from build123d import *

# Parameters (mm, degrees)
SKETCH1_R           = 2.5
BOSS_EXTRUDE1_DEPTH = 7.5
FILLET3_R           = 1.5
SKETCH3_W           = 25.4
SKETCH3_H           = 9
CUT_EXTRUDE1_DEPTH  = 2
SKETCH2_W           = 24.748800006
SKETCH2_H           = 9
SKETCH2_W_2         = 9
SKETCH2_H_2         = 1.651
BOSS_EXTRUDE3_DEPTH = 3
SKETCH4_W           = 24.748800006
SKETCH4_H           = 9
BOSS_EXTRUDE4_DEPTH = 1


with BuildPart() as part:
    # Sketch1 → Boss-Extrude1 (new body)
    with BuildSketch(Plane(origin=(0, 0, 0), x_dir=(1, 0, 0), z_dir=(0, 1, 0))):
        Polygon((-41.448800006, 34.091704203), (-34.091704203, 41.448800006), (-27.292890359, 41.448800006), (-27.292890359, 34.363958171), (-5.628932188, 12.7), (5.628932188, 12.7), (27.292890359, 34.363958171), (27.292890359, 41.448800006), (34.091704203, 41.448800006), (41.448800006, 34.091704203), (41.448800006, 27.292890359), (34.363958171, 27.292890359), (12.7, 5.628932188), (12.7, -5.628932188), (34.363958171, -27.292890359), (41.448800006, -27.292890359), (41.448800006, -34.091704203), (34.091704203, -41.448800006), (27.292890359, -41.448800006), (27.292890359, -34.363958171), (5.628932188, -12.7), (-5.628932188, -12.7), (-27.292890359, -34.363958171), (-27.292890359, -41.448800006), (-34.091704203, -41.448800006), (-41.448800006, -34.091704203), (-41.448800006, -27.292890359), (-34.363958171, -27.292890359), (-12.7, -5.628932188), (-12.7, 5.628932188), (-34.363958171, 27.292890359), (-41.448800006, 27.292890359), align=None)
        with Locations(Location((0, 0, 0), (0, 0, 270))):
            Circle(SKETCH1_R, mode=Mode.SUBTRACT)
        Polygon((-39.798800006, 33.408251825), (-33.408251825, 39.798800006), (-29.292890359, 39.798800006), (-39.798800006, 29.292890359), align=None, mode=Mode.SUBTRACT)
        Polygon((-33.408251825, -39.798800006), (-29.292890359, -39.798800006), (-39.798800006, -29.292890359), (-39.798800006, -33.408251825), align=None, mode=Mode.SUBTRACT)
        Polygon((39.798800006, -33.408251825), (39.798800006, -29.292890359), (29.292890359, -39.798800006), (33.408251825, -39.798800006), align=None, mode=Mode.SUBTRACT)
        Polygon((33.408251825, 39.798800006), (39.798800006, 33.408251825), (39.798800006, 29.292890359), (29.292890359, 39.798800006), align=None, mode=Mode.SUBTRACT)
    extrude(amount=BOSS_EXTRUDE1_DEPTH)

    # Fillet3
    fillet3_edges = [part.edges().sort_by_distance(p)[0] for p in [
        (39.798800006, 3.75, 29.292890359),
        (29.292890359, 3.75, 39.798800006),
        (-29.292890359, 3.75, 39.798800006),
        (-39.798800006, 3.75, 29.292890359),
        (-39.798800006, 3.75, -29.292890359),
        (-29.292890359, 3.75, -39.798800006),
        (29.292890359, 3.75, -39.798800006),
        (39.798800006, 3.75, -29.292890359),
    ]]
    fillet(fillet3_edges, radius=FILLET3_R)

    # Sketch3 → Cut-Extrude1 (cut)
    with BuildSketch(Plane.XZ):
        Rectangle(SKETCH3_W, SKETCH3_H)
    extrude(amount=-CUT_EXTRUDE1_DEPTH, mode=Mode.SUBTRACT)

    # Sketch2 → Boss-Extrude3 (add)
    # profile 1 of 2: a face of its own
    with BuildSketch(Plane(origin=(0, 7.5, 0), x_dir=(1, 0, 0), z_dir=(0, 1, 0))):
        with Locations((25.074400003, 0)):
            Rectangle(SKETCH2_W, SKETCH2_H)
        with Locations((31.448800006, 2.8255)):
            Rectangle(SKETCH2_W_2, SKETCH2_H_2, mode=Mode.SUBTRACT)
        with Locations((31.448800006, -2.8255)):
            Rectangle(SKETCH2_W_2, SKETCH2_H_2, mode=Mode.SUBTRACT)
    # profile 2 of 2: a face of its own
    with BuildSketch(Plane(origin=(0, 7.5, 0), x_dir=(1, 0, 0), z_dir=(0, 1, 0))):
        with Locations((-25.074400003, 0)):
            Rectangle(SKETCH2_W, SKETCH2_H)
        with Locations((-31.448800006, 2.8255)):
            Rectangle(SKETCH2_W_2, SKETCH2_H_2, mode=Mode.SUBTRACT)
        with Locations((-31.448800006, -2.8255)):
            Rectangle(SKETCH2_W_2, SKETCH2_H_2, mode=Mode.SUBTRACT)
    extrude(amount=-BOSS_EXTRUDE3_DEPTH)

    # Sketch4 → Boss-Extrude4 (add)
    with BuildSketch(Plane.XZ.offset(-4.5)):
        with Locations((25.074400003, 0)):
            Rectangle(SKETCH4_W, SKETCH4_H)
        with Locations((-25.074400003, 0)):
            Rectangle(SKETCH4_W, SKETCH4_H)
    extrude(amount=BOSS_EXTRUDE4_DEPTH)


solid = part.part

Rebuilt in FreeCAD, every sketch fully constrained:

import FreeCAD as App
import Part
import Sketcher

V = App.Vector
Q = App.Units.Quantity


def edges_at(feature, points):
    """Names of the edges that pass closest to the given points."""
    edges = feature.Shape.Edges
    near = lambda p: min(range(len(edges)), key=lambda i: edges[i].distToShape(Part.Vertex(*p))[0])
    return sorted({f"Edge{near(p) + 1}" for p in points})


def add_polygon(sketch, points):
    """Adds a closed chain of lines whose ends are joined by coincident constraints."""
    first, n = sketch.GeometryCount, len(points)
    for a, b in zip(points, points[1:] + points[:1]):
        sketch.addGeometry(Part.LineSegment(App.Vector(*a, 0), App.Vector(*b, 0)), False)
    for i in range(n):
        sketch.addConstraint(Sketcher.Constraint("Coincident", first + i, 2, first + (i + 1) % n, 1))

doc = App.newDocument("Part")
body = doc.addObject("PartDesign::Body", "Body")

# Sketch on XZ plane
sketch1 = body.newObject("Sketcher::SketchObject", "Sketch")
sketch1.AttachmentSupport = (doc.getObject("XZ_Plane"), [""])
sketch1.MapMode = "FlatFace"
add_polygon(sketch1, [(-34.1, -41.4), (-41.4, -34.1), (-41.4, -27.3), (-34.4, -27.3), (-12.7, -5.6), (-12.7, 5.6), (-34.4, 27.3), (-41.4, 27.3), (-41.4, 34.1), (-34.1, 41.4), (-27.3, 41.4), (-27.3, 34.4), (-5.6, 12.7), (5.6, 12.7), (27.3, 34.4), (27.3, 41.4), (34.1, 41.4), (41.4, 34.1), (41.4, 27.3), (34.4, 27.3), (12.7, 5.6), (12.7, -5.6), (34.4, -27.3), (41.4, -27.3), (41.4, -34.1), (34.1, -41.4), (27.3, -41.4), (27.3, -34.4), (5.6, -12.7), (-5.6, -12.7), (-27.3, -34.4), (-27.3, -41.4)])  # lines 0-31
add_polygon(sketch1, [(39.8, 33.4), (33.4, 39.8), (29.3, 39.8), (39.8, 29.3)])  # lines 32-35
add_polygon(sketch1, [(-33.4, 39.8), (-39.8, 33.4), (-39.8, 29.3), (-29.3, 39.8)])  # lines 36-39
add_polygon(sketch1, [(33.4, -39.8), (39.8, -33.4), (39.8, -29.3), (29.3, -39.8)])  # lines 40-43
sketch1.addGeometry(Part.Circle(V(0, 0, 0), V(0, 0, 1), 2.5), False)  # 44
add_polygon(sketch1, [(-39.8, -33.4), (-33.4, -39.8), (-29.3, -39.8), (-39.8, -29.3)])  # lines 45-48
sketch1.addConstraint(Sketcher.Constraint("Vertical", 1))
sketch1.addConstraint(Sketcher.Constraint("Horizontal", 2))
sketch1.addConstraint(Sketcher.Constraint("Vertical", 4))
sketch1.addConstraint(Sketcher.Constraint("Horizontal", 6))
sketch1.addConstraint(Sketcher.Constraint("Vertical", 7))
sketch1.addConstraint(Sketcher.Constraint("Horizontal", 9))
sketch1.addConstraint(Sketcher.Constraint("Vertical", 10))
sketch1.addConstraint(Sketcher.Constraint("Horizontal", 12))
sketch1.addConstraint(Sketcher.Constraint("Vertical", 14))
sketch1.addConstraint(Sketcher.Constraint("Horizontal", 15))
sketch1.addConstraint(Sketcher.Constraint("Vertical", 17))
sketch1.addConstraint(Sketcher.Constraint("Horizontal", 18))
sketch1.addConstraint(Sketcher.Constraint("Vertical", 20))
sketch1.addConstraint(Sketcher.Constraint("Horizontal", 22))
sketch1.addConstraint(Sketcher.Constraint("Vertical", 23))
sketch1.addConstraint(Sketcher.Constraint("Horizontal", 25))
sketch1.addConstraint(Sketcher.Constraint("Vertical", 26))
sketch1.addConstraint(Sketcher.Constraint("Horizontal", 28))
sketch1.addConstraint(Sketcher.Constraint("Vertical", 30))
sketch1.addConstraint(Sketcher.Constraint("Horizontal", 31))
sketch1.addConstraint(Sketcher.Constraint("Horizontal", 33))
sketch1.addConstraint(Sketcher.Constraint("Vertical", 35))
sketch1.addConstraint(Sketcher.Constraint("Vertical", 37))
sketch1.addConstraint(Sketcher.Constraint("Horizontal", 39))
sketch1.addConstraint(Sketcher.Constraint("Vertical", 41))
sketch1.addConstraint(Sketcher.Constraint("Horizontal", 43))
sketch1.addConstraint(Sketcher.Constraint("Horizontal", 46))
sketch1.addConstraint(Sketcher.Constraint("Vertical", 48))
sketch1.addConstraint(Sketcher.Constraint("Coincident", 44, 3, -1, 1))
sketch1.addConstraint(Sketcher.Constraint("Symmetric", 0, 2, 16, 2, -1, 1))
sketch1.addConstraint(Sketcher.Constraint("Symmetric", 2, 2, 18, 2, -1, 1))
sketch1.addConstraint(Sketcher.Constraint("Symmetric", 3, 2, 19, 2, -1, 1))
sketch1.addConstraint(Sketcher.Constraint("Symmetric", 5, 2, 21, 2, -1, 1))
sketch1.addConstraint(Sketcher.Constraint("Symmetric", 7, 2, 23, 2, -1, 1))
sketch1.addConstraint(Sketcher.Constraint("Symmetric", 8, 2, 24, 2, -1, 1))
sketch1.addConstraint(Sketcher.Constraint("Symmetric", 10, 2, 26, 2, -1, 1))
sketch1.addConstraint(Sketcher.Constraint("Symmetric", 11, 2, 27, 2, -1, 1))
sketch1.addConstraint(Sketcher.Constraint("Symmetric", 13, 2, 29, 2, -1, 1))
sketch1.addConstraint(Sketcher.Constraint("Symmetric", 15, 2, 31, 2, -1, 1))
sketch1.addConstraint(Sketcher.Constraint("Symmetric", 36, 2, 40, 2, -1, 1))
sketch1.addConstraint(Sketcher.Constraint("Symmetric", 38, 2, 42, 2, -1, 1))
sketch1.addConstraint(Sketcher.Constraint("Symmetric", 32, 2, 45, 2, -1, 1))
sketch1.addConstraint(Sketcher.Constraint("Symmetric", 34, 2, 47, 2, -1, 1))
sketch1.addConstraint(Sketcher.Constraint("Symmetric", 10, 2, 13, 2, -2))
sketch1.addConstraint(Sketcher.Constraint("Symmetric", 8, 2, 15, 2, -2))
sketch1.addConstraint(Sketcher.Constraint("Symmetric", 7, 2, 16, 2, -2))
sketch1.addConstraint(Sketcher.Constraint("Symmetric", 5, 2, 18, 2, -2))
sketch1.addConstraint(Sketcher.Constraint("Symmetric", 35, 2, 36, 2, -2))
sketch1.addConstraint(Sketcher.Constraint("Symmetric", 33, 2, 38, 2, -2))
sketch1.addConstraint(Sketcher.Constraint("Perpendicular", 0, 3))
sketch1.addConstraint(Sketcher.Constraint("Perpendicular", 3, 5))
sketch1.addConstraint(Sketcher.Constraint("Perpendicular", 5, 8))
sketch1.addConstraint(Sketcher.Constraint("Perpendicular", 8, 11))
sketch1.addConstraint(Sketcher.Constraint("Perpendicular", 11, 13))
sketch1.addConstraint(Sketcher.Constraint("Perpendicular", 19, 21))
sketch1.addConstraint(Sketcher.Constraint("Perpendicular", 27, 29))
sketch1.addConstraint(Sketcher.Constraint("Perpendicular", 29, 32))
sketch1.addConstraint(Sketcher.Constraint("Parallel", 32, 34))
sketch1.addConstraint(Sketcher.Constraint("Perpendicular", 34, 36))
sketch1.addConstraint(Sketcher.Constraint("Parallel", 36, 38))
sketch1.addConstraint(Sketcher.Constraint("Parallel", 38, 40))
sketch1.addConstraint(Sketcher.Constraint("Parallel", 40, 42))
sketch1.addConstraint(Sketcher.Constraint("Perpendicular", 42, 45))
sketch1.addConstraint(Sketcher.Constraint("Parallel", 45, 47))
sketch1.addConstraint(Sketcher.Constraint("Equal", 31, 1))
sketch1.addConstraint(Sketcher.Constraint("Equal", 28, 4))
sketch1.addConstraint(Sketcher.Constraint("Equal", 22, 10))
sketch1.addConstraint(Sketcher.Constraint("Equal", 5, 11))
sketch1.addConstraint(Sketcher.Constraint("Diameter", 44, Q("5 mm")))
sketch1.addConstraint(Sketcher.Constraint("DistanceX", 14, 2, 33, 2, Q("2 mm")))
sketch1.addConstraint(Sketcher.Constraint("DistanceY", 17, 2, 34, 2, Q("2 mm")))
sketch1.addConstraint(Sketcher.Constraint("DistanceX", 3, 2, -1, 1, Q("12.7 mm")))
sketch1.addConstraint(Sketcher.Constraint("DistanceY", 32, 2, 15, 2, Q("1.65 mm")))
sketch1.addConstraint(Sketcher.Constraint("Distance", 32, Q("9.0376 mm")))
sketch1.addConstraint(Sketcher.Constraint("Distance", 34, Q("14.8576 mm")))
sketch1.addConstraint(Sketcher.Constraint("DistanceX", 2, 1, 2, 2, Q("7.084842 mm")))
sketch1.addConstraint(Sketcher.Constraint("DistanceX", 0, 2, -1, 1, Q("41.4488 mm")))
sketch1.addConstraint(Sketcher.Constraint("DistanceX", 9, 1, 9, 2, Q("6.798814 mm")))
pad1 = body.newObject("PartDesign::Pad", "Pad")
pad1.Profile = sketch1
pad1.Length = 7.5
pad1.Reversed = True
doc.recompute()

fillet = body.newObject("PartDesign::Fillet", "Fillet")
fillet.Base = (pad1, edges_at(pad1, [
    (39.799, 3.75, 29.293),
    (29.293, 3.75, 39.799),
    (-29.293, 3.75, 39.799),
    (-39.799, 3.75, 29.293),
    (-39.799, 3.75, -29.293),
    (-29.293, 3.75, -39.799),
    (29.293, 3.75, -39.799),
    (39.799, 3.75, -29.293),
]))
fillet.Radius = 1.5

# Sketch on XZ plane
sketch2 = body.newObject("Sketcher::SketchObject", "Sketch001")
sketch2.AttachmentSupport = (doc.getObject("XZ_Plane"), [""])
sketch2.MapMode = "FlatFace"
add_polygon(sketch2, [(-13, 4), (-13, -4), (13, -4), (13, 4)])  # lines 0-3
sketch2.addConstraint(Sketcher.Constraint("Vertical", 0))
sketch2.addConstraint(Sketcher.Constraint("Horizontal", 1))
sketch2.addConstraint(Sketcher.Constraint("Vertical", 2))
sketch2.addConstraint(Sketcher.Constraint("Horizontal", 3))
sketch2.addConstraint(Sketcher.Constraint("Symmetric", 0, 2, 2, 2, -1, 1))
sketch2.addConstraint(Sketcher.Constraint("DistanceY", 0, 2, 0, 1, Q("9 mm")))
sketch2.addConstraint(Sketcher.Constraint("DistanceX", 1, 1, 1, 2, Q("25.4 mm")))
pocket1 = body.newObject("PartDesign::Pocket", "Pocket")
pocket1.Profile = sketch2
pocket1.Length = 2

# Sketch on XZ plane
sketch3 = body.newObject("Sketcher::SketchObject", "Sketch002")
sketch3.AttachmentSupport = (doc.getObject("XZ_Plane"), [""])
sketch3.MapMode = "FlatFace"
sketch3.AttachmentOffset = App.Placement(V(0, 0, -7.5), App.Rotation())
add_polygon(sketch3, [(12.7, -4.5), (12.7, 4.5), (37.4, 4.5), (37.4, -4.5)])  # lines 0-3
add_polygon(sketch3, [(35.9, 3.7), (26.9, 3.7), (26.9, 2), (35.9, 2)])  # lines 4-7
add_polygon(sketch3, [(35.9, -2), (26.9, -2), (26.9, -3.7), (35.9, -3.7)])  # lines 8-11
add_polygon(sketch3, [(-37.4, -4.5), (-37.4, 4.5), (-12.7, 4.5), (-12.7, -4.5)])  # lines 12-15
add_polygon(sketch3, [(-26.9, 3.7), (-35.9, 3.7), (-35.9, 2), (-26.9, 2)])  # lines 16-19
add_polygon(sketch3, [(-26.9, -2), (-35.9, -2), (-35.9, -3.7), (-26.9, -3.7)])  # lines 20-23
sketch3.addConstraint(Sketcher.Constraint("Vertical", 0))
sketch3.addConstraint(Sketcher.Constraint("Horizontal", 1))
sketch3.addConstraint(Sketcher.Constraint("Vertical", 2))
sketch3.addConstraint(Sketcher.Constraint("Horizontal", 3))
sketch3.addConstraint(Sketcher.Constraint("Horizontal", 4))
sketch3.addConstraint(Sketcher.Constraint("Vertical", 5))
sketch3.addConstraint(Sketcher.Constraint("Horizontal", 6))
sketch3.addConstraint(Sketcher.Constraint("Vertical", 7))
sketch3.addConstraint(Sketcher.Constraint("Horizontal", 8))
sketch3.addConstraint(Sketcher.Constraint("Vertical", 9))
sketch3.addConstraint(Sketcher.Constraint("Horizontal", 10))
sketch3.addConstraint(Sketcher.Constraint("Vertical", 11))
sketch3.addConstraint(Sketcher.Constraint("Vertical", 12))
sketch3.addConstraint(Sketcher.Constraint("Horizontal", 13))
sketch3.addConstraint(Sketcher.Constraint("Vertical", 14))
sketch3.addConstraint(Sketcher.Constraint("Horizontal", 15))
sketch3.addConstraint(Sketcher.Constraint("Horizontal", 16))
sketch3.addConstraint(Sketcher.Constraint("Vertical", 17))
sketch3.addConstraint(Sketcher.Constraint("Horizontal", 18))
sketch3.addConstraint(Sketcher.Constraint("Vertical", 19))
sketch3.addConstraint(Sketcher.Constraint("Horizontal", 20))
sketch3.addConstraint(Sketcher.Constraint("Vertical", 21))
sketch3.addConstraint(Sketcher.Constraint("Horizontal", 22))
sketch3.addConstraint(Sketcher.Constraint("Vertical", 23))
sketch3.addConstraint(Sketcher.Constraint("Symmetric", 2, 2, 12, 2, -1, 1))
sketch3.addConstraint(Sketcher.Constraint("Symmetric", 0, 2, 14, 2, -1, 1))
sketch3.addConstraint(Sketcher.Constraint("Symmetric", 10, 2, 16, 2, -1, 1))
sketch3.addConstraint(Sketcher.Constraint("Symmetric", 8, 2, 18, 2, -1, 1))
sketch3.addConstraint(Sketcher.Constraint("Symmetric", 6, 2, 20, 2, -1, 1))
sketch3.addConstraint(Sketcher.Constraint("Symmetric", 4, 2, 22, 2, -1, 1))
sketch3.addConstraint(Sketcher.Constraint("Symmetric", 7, 2, 16, 2, -2))
sketch3.addConstraint(Sketcher.Constraint("Symmetric", 5, 2, 18, 2, -2))
sketch3.addConstraint(Sketcher.Constraint("Horizontal", 1, 2, 12, 2))
sketch3.addConstraint(Sketcher.Constraint("Equal", 22, 0))
sketch3.addConstraint(Sketcher.Constraint("DistanceX", 4, 2, 4, 1, Q("9 mm")))
sketch3.addConstraint(Sketcher.Constraint("DistanceY", -1, 1, 5, 2, Q("2 mm")))
sketch3.addConstraint(Sketcher.Constraint("DistanceX", -1, 1, 0, 2, Q("12.7 mm")))
sketch3.addConstraint(Sketcher.Constraint("DistanceX", 4, 2, 1, 2, Q("10.5 mm")))
sketch3.addConstraint(Sketcher.Constraint("DistanceY", 5, 2, 5, 1, Q("1.651 mm")))
sketch3.addConstraint(Sketcher.Constraint("DistanceX", 1, 1, 1, 2, Q("24.7488 mm")))
pad2 = body.newObject("PartDesign::Pad", "Pad001")
pad2.Profile = sketch3
pad2.Length = 3

# Sketch on XZ plane
sketch4 = body.newObject("Sketcher::SketchObject", "Sketch003")
sketch4.AttachmentSupport = (doc.getObject("XZ_Plane"), [""])
sketch4.MapMode = "FlatFace"
sketch4.AttachmentOffset = App.Placement(V(0, 0, -4.5), App.Rotation())
add_polygon(sketch4, [(13, 4), (13, -4), (37, -4), (37, 4)])  # lines 0-3
add_polygon(sketch4, [(-37, 4), (-37, -4), (-13, -4), (-13, 4)])  # lines 4-7
sketch4.addConstraint(Sketcher.Constraint("Vertical", 0))
sketch4.addConstraint(Sketcher.Constraint("Horizontal", 1))
sketch4.addConstraint(Sketcher.Constraint("Vertical", 2))
sketch4.addConstraint(Sketcher.Constraint("Horizontal", 3))
sketch4.addConstraint(Sketcher.Constraint("Vertical", 4))
sketch4.addConstraint(Sketcher.Constraint("Horizontal", 5))
sketch4.addConstraint(Sketcher.Constraint("Vertical", 6))
sketch4.addConstraint(Sketcher.Constraint("Horizontal", 7))
sketch4.addConstraint(Sketcher.Constraint("Symmetric", 2, 2, 4, 2, -1, 1))
sketch4.addConstraint(Sketcher.Constraint("Symmetric", 0, 2, 6, 2, -1, 1))
sketch4.addConstraint(Sketcher.Constraint("Horizontal", 1, 2, 4, 2))
sketch4.addConstraint(Sketcher.Constraint("DistanceY", 0, 2, 0, 1, Q("9 mm")))
sketch4.addConstraint(Sketcher.Constraint("DistanceX", -1, 1, 0, 2, Q("12.7 mm")))
sketch4.addConstraint(Sketcher.Constraint("DistanceX", 1, 1, 1, 2, Q("24.7488 mm")))
pad3 = body.newObject("PartDesign::Pad", "Pad002")
pad3.Profile = sketch4
pad3.Length = 1

doc.recompute()
